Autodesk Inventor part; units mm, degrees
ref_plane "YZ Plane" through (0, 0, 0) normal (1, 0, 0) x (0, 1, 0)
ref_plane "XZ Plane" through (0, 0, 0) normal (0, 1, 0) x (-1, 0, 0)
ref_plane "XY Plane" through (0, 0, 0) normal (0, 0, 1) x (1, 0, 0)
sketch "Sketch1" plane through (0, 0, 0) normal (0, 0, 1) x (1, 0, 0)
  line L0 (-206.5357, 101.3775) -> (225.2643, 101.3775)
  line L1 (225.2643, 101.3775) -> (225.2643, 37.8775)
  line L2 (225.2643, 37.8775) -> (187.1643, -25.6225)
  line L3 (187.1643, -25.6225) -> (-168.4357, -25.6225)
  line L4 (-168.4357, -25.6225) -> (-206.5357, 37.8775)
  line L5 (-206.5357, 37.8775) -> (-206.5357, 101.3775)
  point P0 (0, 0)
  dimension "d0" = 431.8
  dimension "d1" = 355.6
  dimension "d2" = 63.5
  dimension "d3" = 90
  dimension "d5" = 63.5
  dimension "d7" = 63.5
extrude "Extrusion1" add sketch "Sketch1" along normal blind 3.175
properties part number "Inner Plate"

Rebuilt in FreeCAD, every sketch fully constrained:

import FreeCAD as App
import Part
import Sketcher
from FreeCAD import Vector
Q = App.Units.Quantity


def add_polygon(sketch, points):
    """Adds a closed chain of lines whose ends are joined by coincident constraints."""
    first, n = sketch.GeometryCount, len(points)
    for a, b in zip(points, points[1:] + points[:1]):
        sketch.addGeometry(Part.LineSegment(App.Vector(*a, 0), App.Vector(*b, 0)), False)
    for i in range(n):
        sketch.addConstraint(Sketcher.Constraint("Coincident", first + i, 2, first + (i + 1) % n, 1))

doc = App.newDocument("Part")
body = doc.addObject("PartDesign::Body", "Body")

sketch1 = body.newObject("Sketcher::SketchObject", "Sketch")
sketch1.AttachmentSupport = (doc.getObject("XY_Plane"), [""])
sketch1.MapMode = "FlatFace"
add_polygon(sketch1, [(225.2643, 101.3775), (-206.5357, 101.3775), (-206.5357, 37.8775), (-168.4357, -25.6225), (187.1643, -25.6225), (225.2643, 37.8775)])
sketch1.addConstraint([
    Sketcher.Constraint("Horizontal", 0),
    Sketcher.Constraint("Vertical", 1),
    Sketcher.Constraint("Horizontal", 3),
    Sketcher.Constraint("Vertical", 5),
    Sketcher.Constraint("Horizontal", 1, 2, 4, 2),
    Sketcher.Constraint("Equal", 2, 4),
    Sketcher.Constraint("DistanceX", 0, 2, 0, 1, Q("17 in")),
    Sketcher.Constraint("DistanceX", 3, 1, 3, 2, Q("14 in")),
    Sketcher.Constraint("DistanceY", 1, 2, 1, 1, Q("2.5 in")),
    Sketcher.Constraint("DistanceY", 2, 2, 1, 2, Q("2.5 in")),
    Sketcher.Constraint("DistanceX", 0, 2, -1, 1, Q("206.5357 mm")),
    Sketcher.Constraint("DistanceY", -1, 1, 0, 2, Q("101.3775 mm")),
])
pad1 = body.newObject("PartDesign::Pad", "Pad")
pad1.Profile = sketch1
pad1.Length = Q("0.125 in")

doc.recompute()
